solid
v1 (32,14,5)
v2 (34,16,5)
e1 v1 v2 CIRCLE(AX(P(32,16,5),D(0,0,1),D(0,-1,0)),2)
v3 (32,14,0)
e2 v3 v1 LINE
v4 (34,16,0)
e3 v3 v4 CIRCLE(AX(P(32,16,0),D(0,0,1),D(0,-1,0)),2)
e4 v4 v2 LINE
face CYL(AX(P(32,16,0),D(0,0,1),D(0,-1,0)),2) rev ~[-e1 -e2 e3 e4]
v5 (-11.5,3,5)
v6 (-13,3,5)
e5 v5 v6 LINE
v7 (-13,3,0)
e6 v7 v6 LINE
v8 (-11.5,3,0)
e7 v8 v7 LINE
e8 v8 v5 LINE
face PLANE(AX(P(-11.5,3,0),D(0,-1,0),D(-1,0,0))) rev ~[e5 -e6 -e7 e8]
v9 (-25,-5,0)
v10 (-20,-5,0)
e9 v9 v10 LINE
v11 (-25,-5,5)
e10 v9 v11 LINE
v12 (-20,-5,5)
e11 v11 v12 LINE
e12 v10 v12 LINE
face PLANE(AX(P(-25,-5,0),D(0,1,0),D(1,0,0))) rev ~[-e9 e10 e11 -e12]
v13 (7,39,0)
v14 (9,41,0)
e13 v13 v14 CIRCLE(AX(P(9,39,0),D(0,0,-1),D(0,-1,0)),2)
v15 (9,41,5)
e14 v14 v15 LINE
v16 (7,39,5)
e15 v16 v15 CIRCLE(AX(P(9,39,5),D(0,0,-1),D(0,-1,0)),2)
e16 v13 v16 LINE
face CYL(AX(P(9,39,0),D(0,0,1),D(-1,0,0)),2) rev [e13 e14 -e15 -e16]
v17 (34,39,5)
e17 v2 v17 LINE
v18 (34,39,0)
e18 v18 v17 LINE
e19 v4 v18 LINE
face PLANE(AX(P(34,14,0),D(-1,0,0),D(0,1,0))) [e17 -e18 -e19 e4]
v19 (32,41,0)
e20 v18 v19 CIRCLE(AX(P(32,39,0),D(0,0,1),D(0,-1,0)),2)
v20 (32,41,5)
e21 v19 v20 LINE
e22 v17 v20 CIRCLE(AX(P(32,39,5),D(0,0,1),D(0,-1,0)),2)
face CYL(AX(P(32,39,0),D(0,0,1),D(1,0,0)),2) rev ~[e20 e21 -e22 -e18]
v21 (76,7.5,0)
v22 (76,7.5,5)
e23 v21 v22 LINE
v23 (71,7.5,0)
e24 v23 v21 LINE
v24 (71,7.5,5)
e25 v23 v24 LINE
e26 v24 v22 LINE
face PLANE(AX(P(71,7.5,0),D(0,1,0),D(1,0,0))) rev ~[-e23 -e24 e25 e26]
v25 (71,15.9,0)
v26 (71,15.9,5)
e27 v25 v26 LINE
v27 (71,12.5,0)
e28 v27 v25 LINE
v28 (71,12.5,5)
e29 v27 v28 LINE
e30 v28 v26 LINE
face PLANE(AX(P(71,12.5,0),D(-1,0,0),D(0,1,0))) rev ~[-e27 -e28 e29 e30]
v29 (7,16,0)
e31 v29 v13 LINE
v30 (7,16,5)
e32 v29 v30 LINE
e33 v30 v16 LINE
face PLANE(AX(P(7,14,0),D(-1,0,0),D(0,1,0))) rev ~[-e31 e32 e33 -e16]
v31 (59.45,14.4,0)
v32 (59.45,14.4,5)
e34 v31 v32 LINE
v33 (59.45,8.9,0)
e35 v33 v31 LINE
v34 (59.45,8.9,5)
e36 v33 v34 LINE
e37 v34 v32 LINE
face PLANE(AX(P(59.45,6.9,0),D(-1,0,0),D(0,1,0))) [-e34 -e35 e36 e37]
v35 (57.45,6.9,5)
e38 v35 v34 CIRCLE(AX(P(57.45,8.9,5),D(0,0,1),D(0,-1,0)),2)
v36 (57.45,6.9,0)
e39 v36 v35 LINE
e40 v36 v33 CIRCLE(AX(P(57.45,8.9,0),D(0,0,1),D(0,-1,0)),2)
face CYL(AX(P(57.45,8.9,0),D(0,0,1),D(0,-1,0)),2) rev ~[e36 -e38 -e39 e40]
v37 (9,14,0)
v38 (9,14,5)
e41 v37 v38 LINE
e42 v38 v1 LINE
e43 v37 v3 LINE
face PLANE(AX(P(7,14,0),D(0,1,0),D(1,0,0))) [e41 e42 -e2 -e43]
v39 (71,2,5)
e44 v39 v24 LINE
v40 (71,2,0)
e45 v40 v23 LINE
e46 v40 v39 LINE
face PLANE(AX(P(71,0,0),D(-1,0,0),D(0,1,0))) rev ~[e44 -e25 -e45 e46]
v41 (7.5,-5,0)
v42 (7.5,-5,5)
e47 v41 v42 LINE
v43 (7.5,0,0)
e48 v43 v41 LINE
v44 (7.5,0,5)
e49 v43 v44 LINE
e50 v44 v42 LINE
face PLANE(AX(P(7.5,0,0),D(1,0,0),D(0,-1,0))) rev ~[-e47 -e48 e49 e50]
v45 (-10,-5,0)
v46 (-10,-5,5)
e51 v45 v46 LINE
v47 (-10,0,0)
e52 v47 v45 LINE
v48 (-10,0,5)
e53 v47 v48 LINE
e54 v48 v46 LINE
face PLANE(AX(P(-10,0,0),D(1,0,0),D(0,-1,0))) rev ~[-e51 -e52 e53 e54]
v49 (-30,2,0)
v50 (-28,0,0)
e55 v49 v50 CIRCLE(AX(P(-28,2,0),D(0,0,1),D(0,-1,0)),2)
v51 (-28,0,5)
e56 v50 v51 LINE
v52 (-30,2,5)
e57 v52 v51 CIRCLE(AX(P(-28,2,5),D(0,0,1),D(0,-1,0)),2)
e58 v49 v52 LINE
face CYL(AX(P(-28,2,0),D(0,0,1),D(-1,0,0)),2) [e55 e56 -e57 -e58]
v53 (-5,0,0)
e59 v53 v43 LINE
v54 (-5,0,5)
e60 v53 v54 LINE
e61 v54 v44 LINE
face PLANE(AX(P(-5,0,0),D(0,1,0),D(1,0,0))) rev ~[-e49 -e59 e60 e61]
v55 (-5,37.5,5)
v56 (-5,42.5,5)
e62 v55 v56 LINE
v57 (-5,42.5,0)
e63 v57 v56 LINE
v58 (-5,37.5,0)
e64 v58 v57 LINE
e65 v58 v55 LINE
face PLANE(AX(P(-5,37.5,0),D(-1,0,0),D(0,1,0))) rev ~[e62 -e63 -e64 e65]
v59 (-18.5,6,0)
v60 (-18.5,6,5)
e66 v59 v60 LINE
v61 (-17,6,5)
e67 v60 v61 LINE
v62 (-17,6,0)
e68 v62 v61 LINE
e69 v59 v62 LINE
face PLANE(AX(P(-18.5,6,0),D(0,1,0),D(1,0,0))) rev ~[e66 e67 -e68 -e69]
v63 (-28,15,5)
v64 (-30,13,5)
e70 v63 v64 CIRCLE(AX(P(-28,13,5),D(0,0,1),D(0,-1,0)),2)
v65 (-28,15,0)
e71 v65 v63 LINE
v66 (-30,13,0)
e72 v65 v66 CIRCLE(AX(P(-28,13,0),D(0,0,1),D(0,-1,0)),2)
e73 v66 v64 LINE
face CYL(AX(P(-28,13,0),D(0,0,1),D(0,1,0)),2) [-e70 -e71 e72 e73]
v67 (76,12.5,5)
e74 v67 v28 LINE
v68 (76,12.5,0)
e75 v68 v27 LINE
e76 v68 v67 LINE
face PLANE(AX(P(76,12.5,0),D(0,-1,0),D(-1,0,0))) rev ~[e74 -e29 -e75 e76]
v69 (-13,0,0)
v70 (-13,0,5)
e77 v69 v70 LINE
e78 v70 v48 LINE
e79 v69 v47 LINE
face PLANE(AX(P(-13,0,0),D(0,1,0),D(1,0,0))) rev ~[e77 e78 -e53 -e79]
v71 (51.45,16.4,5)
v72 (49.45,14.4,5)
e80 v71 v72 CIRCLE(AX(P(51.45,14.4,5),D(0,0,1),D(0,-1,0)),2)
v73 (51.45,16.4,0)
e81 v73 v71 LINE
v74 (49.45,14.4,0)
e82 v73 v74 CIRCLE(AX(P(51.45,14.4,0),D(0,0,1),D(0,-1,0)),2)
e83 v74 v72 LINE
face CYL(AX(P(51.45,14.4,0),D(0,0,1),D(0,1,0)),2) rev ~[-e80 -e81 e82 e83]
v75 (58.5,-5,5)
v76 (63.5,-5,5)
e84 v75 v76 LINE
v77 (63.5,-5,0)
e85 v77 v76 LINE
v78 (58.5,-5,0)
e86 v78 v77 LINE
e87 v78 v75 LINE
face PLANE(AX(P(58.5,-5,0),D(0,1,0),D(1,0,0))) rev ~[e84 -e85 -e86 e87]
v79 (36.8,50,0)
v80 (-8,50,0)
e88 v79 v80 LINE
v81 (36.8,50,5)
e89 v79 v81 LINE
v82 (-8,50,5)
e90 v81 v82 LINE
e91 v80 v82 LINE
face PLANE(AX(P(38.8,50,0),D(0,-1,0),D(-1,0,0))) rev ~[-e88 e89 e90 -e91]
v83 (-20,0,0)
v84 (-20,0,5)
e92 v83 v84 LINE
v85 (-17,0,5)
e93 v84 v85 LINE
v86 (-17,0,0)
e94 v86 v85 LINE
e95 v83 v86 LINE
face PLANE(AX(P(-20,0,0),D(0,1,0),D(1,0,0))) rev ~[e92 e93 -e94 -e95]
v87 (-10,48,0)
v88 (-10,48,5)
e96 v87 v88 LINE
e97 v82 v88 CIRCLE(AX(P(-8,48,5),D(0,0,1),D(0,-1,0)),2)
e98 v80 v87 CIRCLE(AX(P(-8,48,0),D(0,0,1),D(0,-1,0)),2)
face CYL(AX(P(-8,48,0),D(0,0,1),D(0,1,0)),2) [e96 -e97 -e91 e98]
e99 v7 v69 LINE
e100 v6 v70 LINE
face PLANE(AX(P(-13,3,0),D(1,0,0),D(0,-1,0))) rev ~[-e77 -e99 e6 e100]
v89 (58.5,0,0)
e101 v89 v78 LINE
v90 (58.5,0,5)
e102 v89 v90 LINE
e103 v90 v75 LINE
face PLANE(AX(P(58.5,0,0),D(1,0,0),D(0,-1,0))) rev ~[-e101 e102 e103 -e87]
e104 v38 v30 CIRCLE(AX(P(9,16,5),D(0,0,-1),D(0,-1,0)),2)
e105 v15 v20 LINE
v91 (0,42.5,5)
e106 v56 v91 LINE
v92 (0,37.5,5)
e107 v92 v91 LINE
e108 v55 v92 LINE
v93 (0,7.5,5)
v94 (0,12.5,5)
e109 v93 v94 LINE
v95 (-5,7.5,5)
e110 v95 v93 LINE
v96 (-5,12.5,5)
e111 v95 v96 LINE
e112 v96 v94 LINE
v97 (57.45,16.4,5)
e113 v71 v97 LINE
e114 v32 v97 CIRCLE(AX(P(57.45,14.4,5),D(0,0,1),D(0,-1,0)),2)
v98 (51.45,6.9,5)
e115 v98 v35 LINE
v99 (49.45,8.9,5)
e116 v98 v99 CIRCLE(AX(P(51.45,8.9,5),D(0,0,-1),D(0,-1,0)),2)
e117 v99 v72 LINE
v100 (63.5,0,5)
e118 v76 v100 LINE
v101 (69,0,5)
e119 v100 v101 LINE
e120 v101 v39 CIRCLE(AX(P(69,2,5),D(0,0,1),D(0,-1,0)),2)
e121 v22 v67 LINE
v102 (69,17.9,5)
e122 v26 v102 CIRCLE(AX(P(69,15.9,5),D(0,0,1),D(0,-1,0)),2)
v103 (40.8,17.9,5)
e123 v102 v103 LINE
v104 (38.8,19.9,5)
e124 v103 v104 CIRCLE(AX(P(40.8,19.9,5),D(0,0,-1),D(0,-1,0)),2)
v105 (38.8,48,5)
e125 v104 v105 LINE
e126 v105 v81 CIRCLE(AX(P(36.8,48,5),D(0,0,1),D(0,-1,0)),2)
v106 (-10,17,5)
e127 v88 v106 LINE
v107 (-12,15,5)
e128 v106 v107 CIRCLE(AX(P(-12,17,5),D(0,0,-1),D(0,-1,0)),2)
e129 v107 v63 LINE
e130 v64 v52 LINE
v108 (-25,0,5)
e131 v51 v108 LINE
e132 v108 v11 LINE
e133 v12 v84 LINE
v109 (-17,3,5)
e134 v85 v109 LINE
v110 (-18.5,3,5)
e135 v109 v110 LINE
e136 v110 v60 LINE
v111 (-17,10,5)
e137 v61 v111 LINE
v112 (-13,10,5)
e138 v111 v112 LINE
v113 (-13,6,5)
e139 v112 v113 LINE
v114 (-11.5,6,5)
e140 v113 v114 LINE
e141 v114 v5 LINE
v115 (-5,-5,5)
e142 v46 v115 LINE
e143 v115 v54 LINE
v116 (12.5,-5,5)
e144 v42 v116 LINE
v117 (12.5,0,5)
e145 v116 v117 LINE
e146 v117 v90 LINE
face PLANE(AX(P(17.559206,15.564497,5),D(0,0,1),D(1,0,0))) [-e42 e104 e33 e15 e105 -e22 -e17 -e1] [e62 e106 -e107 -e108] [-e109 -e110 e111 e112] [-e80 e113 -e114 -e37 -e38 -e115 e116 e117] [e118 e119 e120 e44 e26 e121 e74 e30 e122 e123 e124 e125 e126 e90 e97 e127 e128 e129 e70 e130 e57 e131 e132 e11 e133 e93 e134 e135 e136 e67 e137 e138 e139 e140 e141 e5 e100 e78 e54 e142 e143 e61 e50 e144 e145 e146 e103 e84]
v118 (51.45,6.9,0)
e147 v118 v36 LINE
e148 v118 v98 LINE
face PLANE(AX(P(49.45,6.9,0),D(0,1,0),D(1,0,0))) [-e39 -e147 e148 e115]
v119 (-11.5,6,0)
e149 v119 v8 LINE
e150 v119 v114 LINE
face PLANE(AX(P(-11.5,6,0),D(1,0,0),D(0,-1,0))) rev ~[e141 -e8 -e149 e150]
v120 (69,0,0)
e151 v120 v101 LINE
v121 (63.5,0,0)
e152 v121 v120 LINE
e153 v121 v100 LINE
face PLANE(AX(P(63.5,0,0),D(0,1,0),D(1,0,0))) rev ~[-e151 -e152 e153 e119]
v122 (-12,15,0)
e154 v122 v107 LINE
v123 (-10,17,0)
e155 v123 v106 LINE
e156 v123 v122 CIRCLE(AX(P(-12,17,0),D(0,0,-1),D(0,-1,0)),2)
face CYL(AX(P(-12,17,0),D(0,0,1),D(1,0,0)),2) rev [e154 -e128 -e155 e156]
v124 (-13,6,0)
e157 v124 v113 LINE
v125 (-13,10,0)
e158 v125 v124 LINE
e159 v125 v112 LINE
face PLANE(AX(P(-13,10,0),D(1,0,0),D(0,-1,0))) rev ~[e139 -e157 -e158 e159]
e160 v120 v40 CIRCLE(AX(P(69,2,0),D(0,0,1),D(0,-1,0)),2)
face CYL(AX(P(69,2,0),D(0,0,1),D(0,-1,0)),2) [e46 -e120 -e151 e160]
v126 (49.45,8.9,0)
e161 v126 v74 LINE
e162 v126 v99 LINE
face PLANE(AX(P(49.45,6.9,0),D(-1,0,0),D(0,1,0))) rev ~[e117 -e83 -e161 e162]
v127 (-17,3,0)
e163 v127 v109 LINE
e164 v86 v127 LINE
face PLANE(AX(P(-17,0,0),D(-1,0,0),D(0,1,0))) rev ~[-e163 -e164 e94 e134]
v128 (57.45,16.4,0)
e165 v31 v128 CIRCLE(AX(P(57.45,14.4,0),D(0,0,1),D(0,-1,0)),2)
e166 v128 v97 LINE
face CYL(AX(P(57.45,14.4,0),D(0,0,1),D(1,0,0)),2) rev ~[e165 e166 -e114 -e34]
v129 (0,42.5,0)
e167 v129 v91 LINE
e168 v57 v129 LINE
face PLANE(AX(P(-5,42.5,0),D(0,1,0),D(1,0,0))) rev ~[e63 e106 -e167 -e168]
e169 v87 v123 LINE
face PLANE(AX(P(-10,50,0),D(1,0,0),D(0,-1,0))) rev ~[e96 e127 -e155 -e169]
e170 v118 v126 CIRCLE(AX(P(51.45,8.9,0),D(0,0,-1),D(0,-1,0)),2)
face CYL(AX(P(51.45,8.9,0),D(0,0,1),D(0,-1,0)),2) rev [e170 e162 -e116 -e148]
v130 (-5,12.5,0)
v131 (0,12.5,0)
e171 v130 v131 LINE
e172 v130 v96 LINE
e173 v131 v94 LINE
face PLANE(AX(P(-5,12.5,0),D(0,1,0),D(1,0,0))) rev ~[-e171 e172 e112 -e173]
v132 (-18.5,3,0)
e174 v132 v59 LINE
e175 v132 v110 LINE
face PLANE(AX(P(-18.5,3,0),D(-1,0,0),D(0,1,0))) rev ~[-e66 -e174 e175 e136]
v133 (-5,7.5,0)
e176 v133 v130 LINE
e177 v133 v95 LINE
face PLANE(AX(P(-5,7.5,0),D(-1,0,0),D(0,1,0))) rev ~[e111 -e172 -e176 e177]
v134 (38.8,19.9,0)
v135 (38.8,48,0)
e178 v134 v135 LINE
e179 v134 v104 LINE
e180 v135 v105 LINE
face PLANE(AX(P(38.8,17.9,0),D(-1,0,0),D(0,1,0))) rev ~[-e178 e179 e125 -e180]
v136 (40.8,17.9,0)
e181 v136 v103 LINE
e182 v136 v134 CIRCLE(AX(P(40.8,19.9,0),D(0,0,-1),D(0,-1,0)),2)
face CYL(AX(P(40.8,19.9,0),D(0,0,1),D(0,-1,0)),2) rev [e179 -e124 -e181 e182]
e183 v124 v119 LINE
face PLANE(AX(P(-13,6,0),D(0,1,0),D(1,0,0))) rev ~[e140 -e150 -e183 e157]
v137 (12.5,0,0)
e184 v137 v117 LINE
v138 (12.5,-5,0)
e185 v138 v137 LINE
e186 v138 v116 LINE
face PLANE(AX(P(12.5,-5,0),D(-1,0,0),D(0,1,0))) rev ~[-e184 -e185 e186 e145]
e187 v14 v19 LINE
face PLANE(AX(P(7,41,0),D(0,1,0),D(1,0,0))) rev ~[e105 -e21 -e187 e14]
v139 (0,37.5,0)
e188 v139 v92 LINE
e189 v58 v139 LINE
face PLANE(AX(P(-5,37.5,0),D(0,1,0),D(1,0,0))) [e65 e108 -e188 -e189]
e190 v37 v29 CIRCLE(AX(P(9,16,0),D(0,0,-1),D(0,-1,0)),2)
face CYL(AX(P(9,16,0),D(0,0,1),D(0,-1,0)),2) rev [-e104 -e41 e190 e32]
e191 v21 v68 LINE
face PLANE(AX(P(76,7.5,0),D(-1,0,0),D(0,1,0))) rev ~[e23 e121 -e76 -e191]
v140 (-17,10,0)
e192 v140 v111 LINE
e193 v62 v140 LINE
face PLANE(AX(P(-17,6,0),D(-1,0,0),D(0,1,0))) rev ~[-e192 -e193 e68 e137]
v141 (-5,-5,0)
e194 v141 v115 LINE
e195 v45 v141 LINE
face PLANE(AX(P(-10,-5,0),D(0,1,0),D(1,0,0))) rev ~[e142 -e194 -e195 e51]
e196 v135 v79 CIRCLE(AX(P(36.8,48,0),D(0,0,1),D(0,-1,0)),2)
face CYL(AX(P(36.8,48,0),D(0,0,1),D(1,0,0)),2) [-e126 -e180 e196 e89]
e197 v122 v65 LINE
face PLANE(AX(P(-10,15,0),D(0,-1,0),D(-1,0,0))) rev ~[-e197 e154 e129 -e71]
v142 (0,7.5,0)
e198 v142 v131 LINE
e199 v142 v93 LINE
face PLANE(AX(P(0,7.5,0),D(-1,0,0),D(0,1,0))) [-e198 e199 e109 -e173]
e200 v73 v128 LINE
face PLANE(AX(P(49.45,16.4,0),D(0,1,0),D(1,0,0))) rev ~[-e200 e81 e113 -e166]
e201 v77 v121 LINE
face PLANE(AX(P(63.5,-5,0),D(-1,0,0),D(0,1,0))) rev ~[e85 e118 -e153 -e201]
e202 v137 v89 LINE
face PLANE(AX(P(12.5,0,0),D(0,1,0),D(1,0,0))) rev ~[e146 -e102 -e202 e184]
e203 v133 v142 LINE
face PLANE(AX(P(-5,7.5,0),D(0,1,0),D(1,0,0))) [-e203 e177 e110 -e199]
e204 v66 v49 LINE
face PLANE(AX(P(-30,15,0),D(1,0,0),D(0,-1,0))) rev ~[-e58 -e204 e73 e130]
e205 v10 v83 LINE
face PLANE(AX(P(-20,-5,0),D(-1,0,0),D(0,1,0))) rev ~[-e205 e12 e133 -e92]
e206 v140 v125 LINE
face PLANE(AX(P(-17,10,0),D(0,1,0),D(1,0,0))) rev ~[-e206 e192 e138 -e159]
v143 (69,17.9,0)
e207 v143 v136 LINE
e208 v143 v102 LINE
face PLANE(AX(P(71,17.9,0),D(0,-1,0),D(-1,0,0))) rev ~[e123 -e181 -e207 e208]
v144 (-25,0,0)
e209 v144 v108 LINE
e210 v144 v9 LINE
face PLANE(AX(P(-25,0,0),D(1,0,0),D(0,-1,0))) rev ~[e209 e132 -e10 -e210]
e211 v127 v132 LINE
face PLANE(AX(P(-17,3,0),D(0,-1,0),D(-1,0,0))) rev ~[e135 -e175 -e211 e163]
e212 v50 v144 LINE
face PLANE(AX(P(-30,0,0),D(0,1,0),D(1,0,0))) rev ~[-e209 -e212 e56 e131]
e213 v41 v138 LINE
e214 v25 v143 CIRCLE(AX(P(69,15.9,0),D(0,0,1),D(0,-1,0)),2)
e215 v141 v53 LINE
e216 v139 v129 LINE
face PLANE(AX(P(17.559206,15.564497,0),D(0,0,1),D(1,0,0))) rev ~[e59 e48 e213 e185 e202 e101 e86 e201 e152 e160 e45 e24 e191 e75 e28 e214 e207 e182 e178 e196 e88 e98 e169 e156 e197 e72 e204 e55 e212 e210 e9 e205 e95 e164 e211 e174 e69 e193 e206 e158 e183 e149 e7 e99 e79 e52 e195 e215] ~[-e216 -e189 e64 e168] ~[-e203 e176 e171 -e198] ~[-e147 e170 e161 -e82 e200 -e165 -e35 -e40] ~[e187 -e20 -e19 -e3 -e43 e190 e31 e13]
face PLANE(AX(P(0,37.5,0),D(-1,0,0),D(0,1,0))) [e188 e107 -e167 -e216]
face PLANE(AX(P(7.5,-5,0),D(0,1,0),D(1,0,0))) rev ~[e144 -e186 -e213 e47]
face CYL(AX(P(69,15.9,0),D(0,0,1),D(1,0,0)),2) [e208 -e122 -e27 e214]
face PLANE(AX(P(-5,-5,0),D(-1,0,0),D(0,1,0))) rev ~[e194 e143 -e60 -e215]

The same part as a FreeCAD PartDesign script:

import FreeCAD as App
import Part
import Sketcher
Q = App.Units.Quantity


def edges_at(feature, points):
    """Names of the edges that pass closest to the given points."""
    edges = feature.Shape.Edges
    near = lambda p: min(range(len(edges)), key=lambda i: edges[i].distToShape(Part.Vertex(*p))[0])
    return sorted({f"Edge{near(p) + 1}" for p in points})


def add_polygon(sketch, points):
    """Adds a closed chain of lines whose ends are joined by coincident constraints."""
    first, n = sketch.GeometryCount, len(points)
    for a, b in zip(points, points[1:] + points[:1]):
        sketch.addGeometry(Part.LineSegment(App.Vector(*a, 0), App.Vector(*b, 0)), False)
    for i in range(n):
        sketch.addConstraint(Sketcher.Constraint("Coincident", first + i, 2, first + (i + 1) % n, 1))

doc = App.newDocument("Part")
body = doc.addObject("PartDesign::Body", "Body")

sketch1 = body.newObject("Sketcher::SketchObject", "Sketch")
sketch1.AttachmentSupport = (doc.getObject("XY_Plane"), [""])
sketch1.MapMode = "FlatFace"
add_polygon(sketch1, [(7.5, 0), (7.5, -5), (12.5, -5), (12.5, 0), (58.5, 0), (58.5, -5), (63.5, -5), (63.5, 0), (71, 0), (71, 7.5), (76, 7.5), (76, 12.5), (71, 12.5), (71, 17.9), (38.8, 17.9), (38.8, 50), (-10, 50), (-10, 15), (-30, 15), (-30, 0), (-25, 0), (-25, -5), (-20, -5), (-20, 0), (-17, 0), (-17, 3), (-18.5, 3), (-18.5, 6), (-17, 6), (-17, 10), (-13, 10), (-13, 6), (-11.5, 6), (-11.5, 3), (-13, 3), (-13, 0), (-10, 0), (-10, -5), (-5, -5), (-5, 0)])
add_polygon(sketch1, [(0, 7.5), (-5, 7.5), (-5, 12.5), (0, 12.5)])
add_polygon(sketch1, [(59.45, 6.9), (49.45, 6.9), (49.45, 16.4), (59.45, 16.4)])
add_polygon(sketch1, [(34, 14), (7, 14), (7, 41), (34, 41)])
add_polygon(sketch1, [(0, 37.5), (-5, 37.5), (-5, 42.5), (0, 42.5)])
sketch1.addConstraint([
    Sketcher.Constraint("Vertical", 0),
    Sketcher.Constraint("Horizontal", 1),
    Sketcher.Constraint("Vertical", 2),
    Sketcher.Constraint("Horizontal", 3),
    Sketcher.Constraint("Vertical", 4),
    Sketcher.Constraint("Horizontal", 5),
    Sketcher.Constraint("Vertical", 6),
    Sketcher.Constraint("Horizontal", 7),
    Sketcher.Constraint("Vertical", 8),
    Sketcher.Constraint("Horizontal", 9),
    Sketcher.Constraint("Vertical", 10),
    Sketcher.Constraint("Horizontal", 11),
    Sketcher.Constraint("Vertical", 12),
    Sketcher.Constraint("Horizontal", 13),
    Sketcher.Constraint("Vertical", 14),
    Sketcher.Constraint("Horizontal", 15),
    Sketcher.Constraint("Vertical", 16),
    Sketcher.Constraint("Horizontal", 17),
    Sketcher.Constraint("Vertical", 18),
    Sketcher.Constraint("Horizontal", 19),
    Sketcher.Constraint("Vertical", 20),
    Sketcher.Constraint("Horizontal", 21),
    Sketcher.Constraint("Vertical", 22),
    Sketcher.Constraint("Horizontal", 23),
    Sketcher.Constraint("Vertical", 24),
    Sketcher.Constraint("Horizontal", 25),
    Sketcher.Constraint("Vertical", 26),
    Sketcher.Constraint("Horizontal", 27),
    Sketcher.Constraint("Vertical", 28),
    Sketcher.Constraint("Horizontal", 29),
    Sketcher.Constraint("Vertical", 30),
    Sketcher.Constraint("Horizontal", 31),
    Sketcher.Constraint("Vertical", 32),
    Sketcher.Constraint("Horizontal", 33),
    Sketcher.Constraint("Vertical", 34),
    Sketcher.Constraint("Horizontal", 35),
    Sketcher.Constraint("Vertical", 36),
    Sketcher.Constraint("Horizontal", 37),
    Sketcher.Constraint("Vertical", 38),
    Sketcher.Constraint("Horizontal", 39),
    Sketcher.Constraint("Horizontal", 40),
    Sketcher.Constraint("Vertical", 41),
    Sketcher.Constraint("Horizontal", 42),
    Sketcher.Constraint("Vertical", 43),
    Sketcher.Constraint("Horizontal", 44),
    Sketcher.Constraint("Vertical", 45),
    Sketcher.Constraint("Horizontal", 46),
    Sketcher.Constraint("Vertical", 47),
    Sketcher.Constraint("Horizontal", 48),
    Sketcher.Constraint("Vertical", 49),
    Sketcher.Constraint("Horizontal", 50),
    Sketcher.Constraint("Vertical", 51),
    Sketcher.Constraint("Horizontal", 52),
    Sketcher.Constraint("Vertical", 53),
    Sketcher.Constraint("Horizontal", 54),
    Sketcher.Constraint("Vertical", 55),
    Sketcher.Constraint("PointOnObject", 2, 2, -1),
    Sketcher.Constraint("PointOnObject", 6, 2, -1),
    Sketcher.Constraint("PointOnObject", 18, 2, -1),
    Sketcher.Constraint("PointOnObject", 22, 2, -1),
    Sketcher.Constraint("PointOnObject", 34, 2, -1),
    Sketcher.Constraint("PointOnObject", 38, 2, -1),
    Sketcher.Constraint("PointOnObject", 42, 2, -2),
    Sketcher.Constraint("PointOnObject", 54, 2, -2),
    Sketcher.Constraint("Horizontal", 1, 2, 4, 2),
    Sketcher.Constraint("Horizontal", 5, 2, 20, 2),
    Sketcher.Constraint("Horizontal", 27, 2, 30, 2),
    Sketcher.Constraint("Horizontal", 25, 2, 32, 2),
    Sketcher.Constraint("Horizontal", 21, 2, 36, 2),
    Sketcher.Constraint("Horizontal", 9, 2, 40, 2),
    Sketcher.Constraint("Horizontal", 11, 2, 41, 2),
    Sketcher.Constraint("Vertical", 8, 2, 11, 2),
    Sketcher.Constraint("Vertical", 24, 2, 27, 2),
    Sketcher.Constraint("Vertical", 30, 2, 33, 2),
    Sketcher.Constraint("Vertical", 16, 2, 35, 2),
    Sketcher.Constraint("Vertical", 38, 2, 40, 2),
    Sketcher.Constraint("Vertical", 41, 2, 52, 2),
    Sketcher.Constraint("Equal", 1, 5),
    Sketcher.Constraint("Equal", 5, 9),
    Sketcher.Constraint("Equal", 11, 19),
    Sketcher.Constraint("Equal", 19, 21),
    Sketcher.Constraint("Equal", 27, 31),
    Sketcher.Constraint("Equal", 23, 35),
    Sketcher.Constraint("Equal", 21, 37),
    Sketcher.Constraint("Equal", 37, 40),
    Sketcher.Constraint("Equal", 54, 0),
    Sketcher.Constraint("Equal", 7, 8),
    Sketcher.Constraint("Equal", 6, 10),
    Sketcher.Constraint("Equal", 35, 24),
    Sketcher.Constraint("Equal", 24, 26),
    Sketcher.Constraint("Equal", 29, 28),
    Sketcher.Constraint("Equal", 50, 49),
    Sketcher.Constraint("Equal", 43, 53),
    Sketcher.Constraint("DistanceX", 1, 1, 1, 2, Q("5 mm")),
    Sketcher.Constraint("DistanceX", 3, 1, 3, 2, Q("46 mm")),
    Sketcher.Constraint("DistanceX", 17, 2, 17, 1, Q("20 mm")),
    Sketcher.Constraint("DistanceX", 23, 1, 23, 2, Q("3 mm")),
    Sketcher.Constraint("DistanceX", 44, 2, 44, 1, Q("10 mm")),
    Sketcher.Constraint("DistanceX", 48, 2, 48, 1, Q("27 mm")),
    Sketcher.Constraint("DistanceY", 16, 2, 16, 1, Q("35 mm")),
    Sketcher.Constraint("DistanceY", 18, 2, 18, 1, Q("15 mm")),
    Sketcher.Constraint("DistanceX", 7, 1, 7, 2, Q("7.5 mm")),
    Sketcher.Constraint("DistanceX", 13, 2, 13, 1, Q("32.2 mm")),
    Sketcher.Constraint("DistanceX", 15, 2, 15, 1, Q("48.8 mm")),
    Sketcher.Constraint("DistanceX", 25, 2, 25, 1, Q("1.5 mm")),
    Sketcher.Constraint("DistanceY", 12, 1, 12, 2, Q("5.4 mm")),
    Sketcher.Constraint("DistanceY", 45, 1, 45, 2, Q("9.5 mm")),
    Sketcher.Constraint("DistanceX", -1, 1, 48, 2, Q("7 mm")),
    Sketcher.Constraint("DistanceY", -1, 1, 48, 2, Q("14 mm")),
    Sketcher.Constraint("DistanceY", 44, 2, 13, 2, Q("11 mm")),
    Sketcher.Constraint("DistanceY", 41, 2, 52, 2, Q("25 mm")),
    Sketcher.Constraint("DistanceX", -1, 1, 44, 2, Q("49.45 mm")),
])
pad1 = body.newObject("PartDesign::Pad", "Pad")
pad1.Profile = sketch1
pad1.Length = 5
doc.recompute()

fillet = body.newObject("PartDesign::Fillet", "Fillet")
fillet.Base = (pad1, edges_at(pad1, [
    (7, 41, 2.5),
    (7, 14, 2.5),
    (34, 14, 2.5),
    (34, 41, 2.5),
    (49.45, 16.4, 2.5),
    (49.45, 6.9, 2.5),
    (59.45, 6.9, 2.5),
    (59.45, 16.4, 2.5),
    (-30, 0, 2.5),
    (-30, 15, 2.5),
    (-10, 15, 2.5),
    (-10, 50, 2.5),
    (38.8, 50, 2.5),
    (38.8, 17.9, 2.5),
    (71, 17.9, 2.5),
    (71, 0, 2.5),
]))
fillet.Radius = 2

doc.recompute()
